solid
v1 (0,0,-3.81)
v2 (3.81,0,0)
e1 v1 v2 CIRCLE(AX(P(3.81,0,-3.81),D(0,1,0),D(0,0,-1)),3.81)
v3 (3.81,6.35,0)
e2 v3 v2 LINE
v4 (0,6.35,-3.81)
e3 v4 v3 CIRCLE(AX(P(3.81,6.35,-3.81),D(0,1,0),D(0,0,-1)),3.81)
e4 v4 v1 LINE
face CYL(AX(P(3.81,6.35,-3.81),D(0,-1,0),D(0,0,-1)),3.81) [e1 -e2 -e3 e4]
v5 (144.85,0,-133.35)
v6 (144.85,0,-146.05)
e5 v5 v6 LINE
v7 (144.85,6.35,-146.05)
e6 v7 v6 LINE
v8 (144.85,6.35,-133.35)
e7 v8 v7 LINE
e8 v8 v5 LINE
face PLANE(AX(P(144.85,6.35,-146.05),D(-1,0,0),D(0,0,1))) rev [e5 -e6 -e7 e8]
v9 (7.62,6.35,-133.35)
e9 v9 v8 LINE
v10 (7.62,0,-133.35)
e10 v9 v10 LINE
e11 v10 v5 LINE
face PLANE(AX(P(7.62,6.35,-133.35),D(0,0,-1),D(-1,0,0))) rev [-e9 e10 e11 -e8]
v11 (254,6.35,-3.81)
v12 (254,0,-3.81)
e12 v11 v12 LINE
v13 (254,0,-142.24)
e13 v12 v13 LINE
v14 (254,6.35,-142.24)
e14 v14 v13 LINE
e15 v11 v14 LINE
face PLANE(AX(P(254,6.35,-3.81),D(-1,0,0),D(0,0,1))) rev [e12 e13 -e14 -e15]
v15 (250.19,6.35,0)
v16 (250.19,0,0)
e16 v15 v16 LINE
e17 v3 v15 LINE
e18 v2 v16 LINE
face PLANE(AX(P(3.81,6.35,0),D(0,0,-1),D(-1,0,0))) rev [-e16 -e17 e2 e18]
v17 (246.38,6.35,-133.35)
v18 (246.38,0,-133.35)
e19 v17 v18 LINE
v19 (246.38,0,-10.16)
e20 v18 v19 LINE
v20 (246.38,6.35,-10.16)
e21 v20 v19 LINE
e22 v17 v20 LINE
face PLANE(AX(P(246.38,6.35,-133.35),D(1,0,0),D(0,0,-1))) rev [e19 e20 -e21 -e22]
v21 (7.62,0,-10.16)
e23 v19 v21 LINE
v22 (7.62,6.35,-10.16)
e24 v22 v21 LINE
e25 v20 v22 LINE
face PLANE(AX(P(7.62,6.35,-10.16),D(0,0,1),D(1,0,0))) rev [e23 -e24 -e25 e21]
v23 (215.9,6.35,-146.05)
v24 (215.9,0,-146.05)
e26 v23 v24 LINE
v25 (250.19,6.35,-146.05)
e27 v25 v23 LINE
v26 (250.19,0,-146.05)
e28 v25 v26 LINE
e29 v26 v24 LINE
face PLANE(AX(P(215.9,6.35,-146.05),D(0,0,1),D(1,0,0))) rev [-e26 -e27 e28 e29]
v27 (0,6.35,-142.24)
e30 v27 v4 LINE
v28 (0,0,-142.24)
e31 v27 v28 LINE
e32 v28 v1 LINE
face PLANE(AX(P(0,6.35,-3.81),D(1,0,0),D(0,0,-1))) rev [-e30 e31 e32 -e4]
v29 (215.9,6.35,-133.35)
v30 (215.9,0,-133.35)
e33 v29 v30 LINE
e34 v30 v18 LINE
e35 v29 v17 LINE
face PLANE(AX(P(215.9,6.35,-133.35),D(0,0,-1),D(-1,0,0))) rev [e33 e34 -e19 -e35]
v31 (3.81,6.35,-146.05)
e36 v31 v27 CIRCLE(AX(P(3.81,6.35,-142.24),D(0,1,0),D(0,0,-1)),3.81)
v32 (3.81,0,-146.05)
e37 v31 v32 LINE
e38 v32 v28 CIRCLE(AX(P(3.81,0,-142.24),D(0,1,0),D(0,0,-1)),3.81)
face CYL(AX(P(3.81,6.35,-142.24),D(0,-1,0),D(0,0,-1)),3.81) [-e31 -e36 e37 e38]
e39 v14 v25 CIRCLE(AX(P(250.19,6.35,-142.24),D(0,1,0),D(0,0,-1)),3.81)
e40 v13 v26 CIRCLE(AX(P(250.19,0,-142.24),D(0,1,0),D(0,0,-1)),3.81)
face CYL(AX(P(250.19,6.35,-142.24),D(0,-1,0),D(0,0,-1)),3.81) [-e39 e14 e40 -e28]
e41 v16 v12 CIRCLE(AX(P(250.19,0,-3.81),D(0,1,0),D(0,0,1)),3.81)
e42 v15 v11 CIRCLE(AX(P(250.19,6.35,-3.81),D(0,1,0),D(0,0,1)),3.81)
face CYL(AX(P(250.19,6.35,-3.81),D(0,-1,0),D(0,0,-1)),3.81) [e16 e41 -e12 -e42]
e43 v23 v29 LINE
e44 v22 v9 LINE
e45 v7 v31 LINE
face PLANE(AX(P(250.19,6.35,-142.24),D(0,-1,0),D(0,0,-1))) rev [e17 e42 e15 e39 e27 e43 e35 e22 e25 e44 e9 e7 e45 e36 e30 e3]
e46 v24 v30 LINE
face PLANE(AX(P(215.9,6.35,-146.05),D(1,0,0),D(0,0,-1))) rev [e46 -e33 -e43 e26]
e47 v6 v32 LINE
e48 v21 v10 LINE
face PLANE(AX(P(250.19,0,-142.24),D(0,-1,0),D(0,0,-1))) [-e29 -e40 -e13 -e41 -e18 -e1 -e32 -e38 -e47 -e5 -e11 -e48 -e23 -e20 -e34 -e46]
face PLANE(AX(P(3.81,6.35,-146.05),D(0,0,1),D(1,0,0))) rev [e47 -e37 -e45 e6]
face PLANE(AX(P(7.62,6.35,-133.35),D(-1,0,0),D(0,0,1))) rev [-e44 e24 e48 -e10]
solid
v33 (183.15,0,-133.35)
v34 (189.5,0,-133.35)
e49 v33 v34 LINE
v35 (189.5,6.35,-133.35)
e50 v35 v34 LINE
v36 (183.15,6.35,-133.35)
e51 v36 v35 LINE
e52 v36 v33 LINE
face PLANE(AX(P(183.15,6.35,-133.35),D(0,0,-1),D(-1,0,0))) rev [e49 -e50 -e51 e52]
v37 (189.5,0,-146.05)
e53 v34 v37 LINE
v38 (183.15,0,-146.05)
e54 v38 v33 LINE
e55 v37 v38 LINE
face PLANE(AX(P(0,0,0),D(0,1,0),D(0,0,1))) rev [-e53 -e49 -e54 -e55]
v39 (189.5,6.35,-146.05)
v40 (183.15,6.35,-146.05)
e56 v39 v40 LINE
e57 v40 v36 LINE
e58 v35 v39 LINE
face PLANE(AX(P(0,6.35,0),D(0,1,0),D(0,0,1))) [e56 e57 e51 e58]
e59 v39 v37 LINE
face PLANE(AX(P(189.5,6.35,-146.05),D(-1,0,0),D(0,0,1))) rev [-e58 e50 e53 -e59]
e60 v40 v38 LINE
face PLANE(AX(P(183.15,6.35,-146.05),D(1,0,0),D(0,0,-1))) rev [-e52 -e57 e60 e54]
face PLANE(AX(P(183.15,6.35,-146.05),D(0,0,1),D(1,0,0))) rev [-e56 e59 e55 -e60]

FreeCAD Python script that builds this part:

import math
import FreeCAD as App
import Part
import Sketcher
Q = App.Units.Quantity

doc = App.newDocument("Part")
body = doc.addObject("PartDesign::Body", "Body")

sketch1 = body.newObject("Sketcher::SketchObject", "Sketch")
sketch1.AttachmentSupport = (doc.getObject("XZ_Plane"), [""])
sketch1.MapMode = "FlatFace"
sketch1.addGeometry([
    Part.LineSegment(App.Vector(183.15, -146.05, 0), App.Vector(183.15, -133.35, 0)),
    Part.LineSegment(App.Vector(183.15, -133.35, 0), App.Vector(189.5, -133.35, 0)),
    Part.LineSegment(App.Vector(189.5, -133.35, 0), App.Vector(189.5, -146.05, 0)),
    Part.LineSegment(App.Vector(189.5, -146.05, 0), App.Vector(183.15, -146.05, 0)),
], False)
sketch1.addConstraint([
    Sketcher.Constraint("Coincident", 0, 2, 1, 1),
    Sketcher.Constraint("Coincident", 1, 2, 2, 1),
    Sketcher.Constraint("Coincident", 2, 2, 3, 1),
    Sketcher.Constraint("Coincident", 3, 2, 0, 1),
    Sketcher.Constraint("Vertical", 0),
    Sketcher.Constraint("Horizontal", 1),
    Sketcher.Constraint("Vertical", 2),
    Sketcher.Constraint("Horizontal", 3),
    Sketcher.Constraint("DistanceY", 0, 1, 0, 2, Q("0.5 in")),
    Sketcher.Constraint("DistanceX", 1, 1, 1, 2, Q("0.25 in")),
    Sketcher.Constraint("DistanceY", 0, 2, -1, 1, Q("5.25 in")),
    Sketcher.Constraint("DistanceX", -1, 1, 0, 2, Q("183.15 mm")),
])
pad1 = body.newObject("PartDesign::Pad", "Pad")
pad1.Profile = sketch1
pad1.Length = Q("0.25 in")
pad1.Reversed = True
body2 = doc.addObject("PartDesign::Body", "Body001")

sketch2 = body2.newObject("Sketcher::SketchObject", "Sketch001")
sketch2.AttachmentSupport = (doc.getObject("XZ_Plane001"), [""])
sketch2.MapMode = "FlatFace"
sketch2.addGeometry([
    Part.LineSegment(App.Vector(3.81, 0, 0), App.Vector(250.19, 0, 0)),
    Part.ArcOfCircle(Part.Circle(App.Vector(250.19, -3.81, 0), App.Vector(0, 0, 1), 3.81), math.radians(0), math.radians(90)),
    Part.LineSegment(App.Vector(254, -3.81, 0), App.Vector(254, -142.24, 0)),
    Part.ArcOfCircle(Part.Circle(App.Vector(250.19, -142.24, 0), App.Vector(0, 0, 1), 3.81), math.radians(-90), math.radians(0)),
    Part.LineSegment(App.Vector(250.19, -146.05, 0), App.Vector(215.9, -146.05, 0)),
    Part.LineSegment(App.Vector(215.9, -146.05, 0), App.Vector(215.9, -133.35, 0)),
    Part.LineSegment(App.Vector(215.9, -133.35, 0), App.Vector(246.38, -133.35, 0)),
    Part.LineSegment(App.Vector(246.38, -133.35, 0), App.Vector(246.38, -10.16, 0)),
    Part.LineSegment(App.Vector(246.38, -10.16, 0), App.Vector(7.62, -10.16, 0)),
    Part.LineSegment(App.Vector(7.62, -10.16, 0), App.Vector(7.62, -133.35, 0)),
    Part.LineSegment(App.Vector(7.62, -133.35, 0), App.Vector(144.85, -133.35, 0)),
    Part.LineSegment(App.Vector(144.85, -133.35, 0), App.Vector(144.85, -146.05, 0)),
    Part.LineSegment(App.Vector(144.85, -146.05, 0), App.Vector(3.81, -146.05, 0)),
    Part.ArcOfCircle(Part.Circle(App.Vector(3.81, -142.24, 0), App.Vector(0, 0, 1), 3.81), math.radians(-180), math.radians(-90)),
    Part.LineSegment(App.Vector(0, -142.24, 0), App.Vector(0, -3.81, 0)),
    Part.ArcOfCircle(Part.Circle(App.Vector(3.81, -3.81, 0), App.Vector(0, 0, 1), 3.81), math.radians(90), math.radians(180)),
], False)
sketch2.addConstraint([
    Sketcher.Constraint("Tangent", 0, 2, 1, 2),
    Sketcher.Constraint("Tangent", 1, 1, 2, 1),
    Sketcher.Constraint("Tangent", 2, 2, 3, 2),
    Sketcher.Constraint("Tangent", 3, 1, 4, 1),
    Sketcher.Constraint("Coincident", 4, 2, 5, 1),
    Sketcher.Constraint("Coincident", 5, 2, 6, 1),
    Sketcher.Constraint("Coincident", 6, 2, 7, 1),
    Sketcher.Constraint("Coincident", 7, 2, 8, 1),
    Sketcher.Constraint("Coincident", 8, 2, 9, 1),
    Sketcher.Constraint("Coincident", 9, 2, 10, 1),
    Sketcher.Constraint("Coincident", 10, 2, 11, 1),
    Sketcher.Constraint("Coincident", 11, 2, 12, 1),
    Sketcher.Constraint("Tangent", 12, 2, 13, 2),
    Sketcher.Constraint("Tangent", 13, 1, 14, 1),
    Sketcher.Constraint("Tangent", 14, 2, 15, 2),
    Sketcher.Constraint("Tangent", 15, 1, 0, 1),
    Sketcher.Constraint("Horizontal", 0),
    Sketcher.Constraint("Vertical", 2),
    Sketcher.Constraint("Horizontal", 4),
    Sketcher.Constraint("Vertical", 5),
    Sketcher.Constraint("Horizontal", 6),
    Sketcher.Constraint("Vertical", 7),
    Sketcher.Constraint("Horizontal", 8),
    Sketcher.Constraint("Vertical", 9),
    Sketcher.Constraint("Horizontal", 10),
    Sketcher.Constraint("Vertical", 11),
    Sketcher.Constraint("Horizontal", 12),
    Sketcher.Constraint("Vertical", 14),
    Sketcher.Constraint("Equal", 1, 3),
    Sketcher.Constraint("Equal", 3, 13),
    Sketcher.Constraint("Equal", 13, 15),
    Sketcher.Constraint("PointOnObject", 0, 2, -1),
    Sketcher.Constraint("PointOnObject", 13, 1, -2),
    Sketcher.Constraint("Horizontal", 3, 3, 13, 3),
    Sketcher.Constraint("Horizontal", 6, 2, 9, 2),
    Sketcher.Constraint("Radius", 1, Q("0.15 in")),
    Sketcher.Constraint("DistanceX", 0, 1, 0, 2, Q("9.7 in")),
    Sketcher.Constraint("DistanceX", 6, 1, 6, 2, Q("1.2 in")),
    Sketcher.Constraint("DistanceX", 8, 2, 8, 1, Q("9.4 in")),
    Sketcher.Constraint("DistanceY", 5, 1, 5, 2, Q("0.5 in")),
    Sketcher.Constraint("DistanceX", 4, 2, 4, 1, Q("1.35 in")),
    Sketcher.Constraint("DistanceY", 2, 2, 2, 1, Q("5.45 in")),
    Sketcher.Constraint("DistanceY", 7, 1, 7, 2, Q("4.85 in")),
    Sketcher.Constraint("DistanceX", 10, 1, 10, 2, Q("137.23 mm")),
])
pad2 = body2.newObject("PartDesign::Pad", "Pad001")
pad2.Profile = sketch2
pad2.Length = Q("0.25 in")
pad2.Reversed = True

doc.recompute()
